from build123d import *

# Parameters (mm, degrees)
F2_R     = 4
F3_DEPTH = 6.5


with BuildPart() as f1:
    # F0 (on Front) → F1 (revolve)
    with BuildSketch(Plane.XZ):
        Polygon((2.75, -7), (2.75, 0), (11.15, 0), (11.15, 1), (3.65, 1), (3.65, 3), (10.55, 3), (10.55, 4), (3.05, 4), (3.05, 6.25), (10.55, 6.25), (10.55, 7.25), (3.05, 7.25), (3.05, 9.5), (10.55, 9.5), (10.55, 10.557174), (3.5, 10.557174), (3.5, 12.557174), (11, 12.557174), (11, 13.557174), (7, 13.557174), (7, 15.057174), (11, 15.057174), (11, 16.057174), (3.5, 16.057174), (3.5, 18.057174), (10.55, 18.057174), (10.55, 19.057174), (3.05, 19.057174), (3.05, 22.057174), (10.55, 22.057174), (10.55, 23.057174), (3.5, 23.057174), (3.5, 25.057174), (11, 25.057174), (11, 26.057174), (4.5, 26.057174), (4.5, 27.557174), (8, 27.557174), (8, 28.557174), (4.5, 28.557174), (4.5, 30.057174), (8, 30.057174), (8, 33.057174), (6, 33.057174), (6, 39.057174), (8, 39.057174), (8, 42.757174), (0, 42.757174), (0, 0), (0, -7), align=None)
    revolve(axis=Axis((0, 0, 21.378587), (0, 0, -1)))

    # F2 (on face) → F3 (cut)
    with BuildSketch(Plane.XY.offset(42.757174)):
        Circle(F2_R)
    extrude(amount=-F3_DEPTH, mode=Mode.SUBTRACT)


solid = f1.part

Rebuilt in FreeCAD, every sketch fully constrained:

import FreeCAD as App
import Part
import Sketcher
Q = App.Units.Quantity


def add_polygon(sketch, points):
    """Adds a closed chain of lines whose ends are joined by coincident constraints."""
    first, n = sketch.GeometryCount, len(points)
    for a, b in zip(points, points[1:] + points[:1]):
        sketch.addGeometry(Part.LineSegment(App.Vector(*a, 0), App.Vector(*b, 0)), False)
    for i in range(n):
        sketch.addConstraint(Sketcher.Constraint("Coincident", first + i, 2, first + (i + 1) % n, 1))

doc = App.newDocument("Part")
body = doc.addObject("PartDesign::Body", "Body")

# Sketch on XZ plane
sketch1 = doc.addObject("Sketcher::SketchObject", "Sketch")
body.addObject(sketch1)
sketch1.AttachmentSupport = (doc.XZ_Plane, [""])
sketch1.MapMode = "FlatFace"
add_polygon(sketch1, [(2.8, -7), (2.8, 0), (11.2, 0), (11.2, 1), (3.6, 1), (3.6, 3), (10.6, 3), (10.6, 4), (3, 4), (3, 6.2), (10.6, 6.2), (10.6, 7.2), (3, 7.2), (3, 9.5), (10.6, 9.5), (10.6, 10.6), (3.5, 10.6), (3.5, 12.6), (11, 12.6), (11, 13.6), (7, 13.6), (7, 15.1), (11, 15.1), (11, 16.1), (3.5, 16.1), (3.5, 18.1), (10.6, 18.1), (10.6, 19.1), (3, 19.1), (3, 22.1), (10.6, 22.1), (10.6, 23.1), (3.5, 23.1), (3.5, 25.1), (11, 25.1), (11, 26.1), (4.5, 26.1), (4.5, 27.6), (8, 27.6), (8, 28.6), (4.5, 28.6), (4.5, 30.1), (8, 30.1), (8, 33.1), (6, 33.1), (6, 39.1), (8, 39.1), (8, 42.8), (0, 42.8), (0, -7)])  # lines 0-49
sketch1.addConstraint(Sketcher.Constraint("Vertical", 0))
sketch1.addConstraint(Sketcher.Constraint("Horizontal", 1))
sketch1.addConstraint(Sketcher.Constraint("Vertical", 2))
sketch1.addConstraint(Sketcher.Constraint("Horizontal", 3))
sketch1.addConstraint(Sketcher.Constraint("Vertical", 4))
sketch1.addConstraint(Sketcher.Constraint("Horizontal", 5))
sketch1.addConstraint(Sketcher.Constraint("Vertical", 6))
sketch1.addConstraint(Sketcher.Constraint("Horizontal", 7))
sketch1.addConstraint(Sketcher.Constraint("Vertical", 8))
sketch1.addConstraint(Sketcher.Constraint("Horizontal", 9))
sketch1.addConstraint(Sketcher.Constraint("Vertical", 10))
sketch1.addConstraint(Sketcher.Constraint("Horizontal", 11))
sketch1.addConstraint(Sketcher.Constraint("Vertical", 12))
sketch1.addConstraint(Sketcher.Constraint("Horizontal", 13))
sketch1.addConstraint(Sketcher.Constraint("Vertical", 14))
sketch1.addConstraint(Sketcher.Constraint("Horizontal", 15))
sketch1.addConstraint(Sketcher.Constraint("Vertical", 16))
sketch1.addConstraint(Sketcher.Constraint("Horizontal", 17))
sketch1.addConstraint(Sketcher.Constraint("Vertical", 18))
sketch1.addConstraint(Sketcher.Constraint("Horizontal", 19))
sketch1.addConstraint(Sketcher.Constraint("Vertical", 20))
sketch1.addConstraint(Sketcher.Constraint("Horizontal", 21))
sketch1.addConstraint(Sketcher.Constraint("Vertical", 22))
sketch1.addConstraint(Sketcher.Constraint("Horizontal", 23))
sketch1.addConstraint(Sketcher.Constraint("Vertical", 24))
sketch1.addConstraint(Sketcher.Constraint("Horizontal", 25))
sketch1.addConstraint(Sketcher.Constraint("Vertical", 26))
sketch1.addConstraint(Sketcher.Constraint("Horizontal", 27))
sketch1.addConstraint(Sketcher.Constraint("Vertical", 28))
sketch1.addConstraint(Sketcher.Constraint("Horizontal", 29))
sketch1.addConstraint(Sketcher.Constraint("Vertical", 30))
sketch1.addConstraint(Sketcher.Constraint("Horizontal", 31))
sketch1.addConstraint(Sketcher.Constraint("Vertical", 32))
sketch1.addConstraint(Sketcher.Constraint("Horizontal", 33))
sketch1.addConstraint(Sketcher.Constraint("Vertical", 34))
sketch1.addConstraint(Sketcher.Constraint("Horizontal", 35))
sketch1.addConstraint(Sketcher.Constraint("Vertical", 36))
sketch1.addConstraint(Sketcher.Constraint("Horizontal", 37))
sketch1.addConstraint(Sketcher.Constraint("Vertical", 38))
sketch1.addConstraint(Sketcher.Constraint("Horizontal", 39))
sketch1.addConstraint(Sketcher.Constraint("Vertical", 40))
sketch1.addConstraint(Sketcher.Constraint("Horizontal", 41))
sketch1.addConstraint(Sketcher.Constraint("Vertical", 42))
sketch1.addConstraint(Sketcher.Constraint("Horizontal", 43))
sketch1.addConstraint(Sketcher.Constraint("Vertical", 44))
sketch1.addConstraint(Sketcher.Constraint("Horizontal", 45))
sketch1.addConstraint(Sketcher.Constraint("Vertical", 46))
sketch1.addConstraint(Sketcher.Constraint("Horizontal", 47))
sketch1.addConstraint(Sketcher.Constraint("Vertical", 48))
sketch1.addConstraint(Sketcher.Constraint("Horizontal", 49))
sketch1.addConstraint(Sketcher.Constraint("PointOnObject", 0, 2, -1))
sketch1.addConstraint(Sketcher.Constraint("PointOnObject", 47, 2, -2))
sketch1.addConstraint(Sketcher.Constraint("Vertical", 6, 2, 9, 2))
sketch1.addConstraint(Sketcher.Constraint("Vertical", 8, 2, 11, 2))
sketch1.addConstraint(Sketcher.Constraint("Vertical", 10, 2, 13, 2))
sketch1.addConstraint(Sketcher.Constraint("Vertical", 18, 2, 21, 2))
sketch1.addConstraint(Sketcher.Constraint("Vertical", 16, 2, 23, 2))
sketch1.addConstraint(Sketcher.Constraint("Vertical", 14, 2, 25, 2))
sketch1.addConstraint(Sketcher.Constraint("Vertical", 12, 2, 27, 2))
sketch1.addConstraint(Sketcher.Constraint("Vertical", 26, 2, 29, 2))
sketch1.addConstraint(Sketcher.Constraint("Vertical", 24, 2, 31, 2))
sketch1.addConstraint(Sketcher.Constraint("Vertical", 22, 2, 33, 2))
sketch1.addConstraint(Sketcher.Constraint("Vertical", 36, 2, 39, 2))
sketch1.addConstraint(Sketcher.Constraint("Vertical", 38, 2, 41, 2))
sketch1.addConstraint(Sketcher.Constraint("Vertical", 42, 2, 45, 2))
sketch1.addConstraint(Sketcher.Constraint("Equal", 3, 7))
sketch1.addConstraint(Sketcher.Constraint("Equal", 13, 17))
sketch1.addConstraint(Sketcher.Constraint("Equal", 45, 4))
sketch1.addConstraint(Sketcher.Constraint("Equal", 2, 6))
sketch1.addConstraint(Sketcher.Constraint("Equal", 6, 10))
sketch1.addConstraint(Sketcher.Constraint("Equal", 8, 12))
sketch1.addConstraint(Sketcher.Constraint("Equal", 4, 16))
sketch1.addConstraint(Sketcher.Constraint("Equal", 10, 18))
sketch1.addConstraint(Sketcher.Constraint("Equal", 18, 22))
sketch1.addConstraint(Sketcher.Constraint("Equal", 16, 24))
sketch1.addConstraint(Sketcher.Constraint("Equal", 22, 26))
sketch1.addConstraint(Sketcher.Constraint("Equal", 26, 30))
sketch1.addConstraint(Sketcher.Constraint("Equal", 24, 32))
sketch1.addConstraint(Sketcher.Constraint("Equal", 30, 34))
sketch1.addConstraint(Sketcher.Constraint("Equal", 20, 36))
sketch1.addConstraint(Sketcher.Constraint("Equal", 34, 38))
sketch1.addConstraint(Sketcher.Constraint("Equal", 36, 40))
sketch1.addConstraint(Sketcher.Constraint("Equal", 28, 42))
sketch1.addConstraint(Sketcher.Constraint("DistanceX", 19, 2, 19, 1, Q("4 mm")))
sketch1.addConstraint(Sketcher.Constraint("DistanceX", 43, 2, 43, 1, Q("2 mm")))
sketch1.addConstraint(Sketcher.Constraint("DistanceX", 47, 2, 47, 1, Q("8 mm")))
sketch1.addConstraint(Sketcher.Constraint("DistanceY", 0, 1, 0, 2, Q("7 mm")))
sketch1.addConstraint(Sketcher.Constraint("DistanceY", 2, 1, 2, 2, Q("1 mm")))
sketch1.addConstraint(Sketcher.Constraint("DistanceY", 28, 1, 28, 2, Q("3 mm")))
sketch1.addConstraint(Sketcher.Constraint("DistanceY", 44, 1, 44, 2, Q("6 mm")))
sketch1.addConstraint(Sketcher.Constraint("DistanceX", 1, 1, 1, 2, Q("8.4 mm")))
sketch1.addConstraint(Sketcher.Constraint("DistanceX", 3, 2, 3, 1, Q("7.5 mm")))
sketch1.addConstraint(Sketcher.Constraint("DistanceX", 5, 1, 5, 2, Q("6.9 mm")))
sketch1.addConstraint(Sketcher.Constraint("DistanceX", 35, 2, 35, 1, Q("6.5 mm")))
sketch1.addConstraint(Sketcher.Constraint("DistanceX", 37, 1, 37, 2, Q("3.5 mm")))
sketch1.addConstraint(Sketcher.Constraint("DistanceY", 20, 1, 20, 2, Q("1.5 mm")))
sketch1.addConstraint(Sketcher.Constraint("DistanceY", 46, 1, 46, 2, Q("3.7 mm")))
sketch1.addConstraint(Sketcher.Constraint("DistanceX", 15, 2, 15, 1, Q("7.05 mm")))
sketch1.addConstraint(Sketcher.Constraint("DistanceY", 8, 1, 8, 2, Q("2.25 mm")))
sketch1.addConstraint(Sketcher.Constraint("DistanceY", 14, 1, 14, 2, Q("1.057174 mm")))
revolution = doc.addObject("PartDesign::Revolution", "Revolution")
body.addObject(revolution)
revolution.Profile = sketch1
revolution.ReferenceAxis = (sketch1, ["V_Axis"])
revolution.Angle = 360

# Sketch on XY plane
sketch2 = doc.addObject("Sketcher::SketchObject", "Sketch001")
body.addObject(sketch2)
sketch2.AttachmentSupport = (doc.XY_Plane, [""])
sketch2.MapMode = "FlatFace"
sketch2.AttachmentOffset = App.Placement(App.Vector(0, 0, 42.757174), App.Rotation())
sketch2.addGeometry(Part.Circle(App.Vector(0, 0, 0), App.Vector(0, 0, 1), 4), False)
sketch2.addConstraint(Sketcher.Constraint("Coincident", 0, 3, -1, 1))
sketch2.addConstraint(Sketcher.Constraint("Diameter", 0, Q("8 mm")))
pocket1 = doc.addObject("PartDesign::Pocket", "Pocket")
body.addObject(pocket1)
pocket1.Profile = sketch2
pocket1.Length = 6.5

doc.recompute()
